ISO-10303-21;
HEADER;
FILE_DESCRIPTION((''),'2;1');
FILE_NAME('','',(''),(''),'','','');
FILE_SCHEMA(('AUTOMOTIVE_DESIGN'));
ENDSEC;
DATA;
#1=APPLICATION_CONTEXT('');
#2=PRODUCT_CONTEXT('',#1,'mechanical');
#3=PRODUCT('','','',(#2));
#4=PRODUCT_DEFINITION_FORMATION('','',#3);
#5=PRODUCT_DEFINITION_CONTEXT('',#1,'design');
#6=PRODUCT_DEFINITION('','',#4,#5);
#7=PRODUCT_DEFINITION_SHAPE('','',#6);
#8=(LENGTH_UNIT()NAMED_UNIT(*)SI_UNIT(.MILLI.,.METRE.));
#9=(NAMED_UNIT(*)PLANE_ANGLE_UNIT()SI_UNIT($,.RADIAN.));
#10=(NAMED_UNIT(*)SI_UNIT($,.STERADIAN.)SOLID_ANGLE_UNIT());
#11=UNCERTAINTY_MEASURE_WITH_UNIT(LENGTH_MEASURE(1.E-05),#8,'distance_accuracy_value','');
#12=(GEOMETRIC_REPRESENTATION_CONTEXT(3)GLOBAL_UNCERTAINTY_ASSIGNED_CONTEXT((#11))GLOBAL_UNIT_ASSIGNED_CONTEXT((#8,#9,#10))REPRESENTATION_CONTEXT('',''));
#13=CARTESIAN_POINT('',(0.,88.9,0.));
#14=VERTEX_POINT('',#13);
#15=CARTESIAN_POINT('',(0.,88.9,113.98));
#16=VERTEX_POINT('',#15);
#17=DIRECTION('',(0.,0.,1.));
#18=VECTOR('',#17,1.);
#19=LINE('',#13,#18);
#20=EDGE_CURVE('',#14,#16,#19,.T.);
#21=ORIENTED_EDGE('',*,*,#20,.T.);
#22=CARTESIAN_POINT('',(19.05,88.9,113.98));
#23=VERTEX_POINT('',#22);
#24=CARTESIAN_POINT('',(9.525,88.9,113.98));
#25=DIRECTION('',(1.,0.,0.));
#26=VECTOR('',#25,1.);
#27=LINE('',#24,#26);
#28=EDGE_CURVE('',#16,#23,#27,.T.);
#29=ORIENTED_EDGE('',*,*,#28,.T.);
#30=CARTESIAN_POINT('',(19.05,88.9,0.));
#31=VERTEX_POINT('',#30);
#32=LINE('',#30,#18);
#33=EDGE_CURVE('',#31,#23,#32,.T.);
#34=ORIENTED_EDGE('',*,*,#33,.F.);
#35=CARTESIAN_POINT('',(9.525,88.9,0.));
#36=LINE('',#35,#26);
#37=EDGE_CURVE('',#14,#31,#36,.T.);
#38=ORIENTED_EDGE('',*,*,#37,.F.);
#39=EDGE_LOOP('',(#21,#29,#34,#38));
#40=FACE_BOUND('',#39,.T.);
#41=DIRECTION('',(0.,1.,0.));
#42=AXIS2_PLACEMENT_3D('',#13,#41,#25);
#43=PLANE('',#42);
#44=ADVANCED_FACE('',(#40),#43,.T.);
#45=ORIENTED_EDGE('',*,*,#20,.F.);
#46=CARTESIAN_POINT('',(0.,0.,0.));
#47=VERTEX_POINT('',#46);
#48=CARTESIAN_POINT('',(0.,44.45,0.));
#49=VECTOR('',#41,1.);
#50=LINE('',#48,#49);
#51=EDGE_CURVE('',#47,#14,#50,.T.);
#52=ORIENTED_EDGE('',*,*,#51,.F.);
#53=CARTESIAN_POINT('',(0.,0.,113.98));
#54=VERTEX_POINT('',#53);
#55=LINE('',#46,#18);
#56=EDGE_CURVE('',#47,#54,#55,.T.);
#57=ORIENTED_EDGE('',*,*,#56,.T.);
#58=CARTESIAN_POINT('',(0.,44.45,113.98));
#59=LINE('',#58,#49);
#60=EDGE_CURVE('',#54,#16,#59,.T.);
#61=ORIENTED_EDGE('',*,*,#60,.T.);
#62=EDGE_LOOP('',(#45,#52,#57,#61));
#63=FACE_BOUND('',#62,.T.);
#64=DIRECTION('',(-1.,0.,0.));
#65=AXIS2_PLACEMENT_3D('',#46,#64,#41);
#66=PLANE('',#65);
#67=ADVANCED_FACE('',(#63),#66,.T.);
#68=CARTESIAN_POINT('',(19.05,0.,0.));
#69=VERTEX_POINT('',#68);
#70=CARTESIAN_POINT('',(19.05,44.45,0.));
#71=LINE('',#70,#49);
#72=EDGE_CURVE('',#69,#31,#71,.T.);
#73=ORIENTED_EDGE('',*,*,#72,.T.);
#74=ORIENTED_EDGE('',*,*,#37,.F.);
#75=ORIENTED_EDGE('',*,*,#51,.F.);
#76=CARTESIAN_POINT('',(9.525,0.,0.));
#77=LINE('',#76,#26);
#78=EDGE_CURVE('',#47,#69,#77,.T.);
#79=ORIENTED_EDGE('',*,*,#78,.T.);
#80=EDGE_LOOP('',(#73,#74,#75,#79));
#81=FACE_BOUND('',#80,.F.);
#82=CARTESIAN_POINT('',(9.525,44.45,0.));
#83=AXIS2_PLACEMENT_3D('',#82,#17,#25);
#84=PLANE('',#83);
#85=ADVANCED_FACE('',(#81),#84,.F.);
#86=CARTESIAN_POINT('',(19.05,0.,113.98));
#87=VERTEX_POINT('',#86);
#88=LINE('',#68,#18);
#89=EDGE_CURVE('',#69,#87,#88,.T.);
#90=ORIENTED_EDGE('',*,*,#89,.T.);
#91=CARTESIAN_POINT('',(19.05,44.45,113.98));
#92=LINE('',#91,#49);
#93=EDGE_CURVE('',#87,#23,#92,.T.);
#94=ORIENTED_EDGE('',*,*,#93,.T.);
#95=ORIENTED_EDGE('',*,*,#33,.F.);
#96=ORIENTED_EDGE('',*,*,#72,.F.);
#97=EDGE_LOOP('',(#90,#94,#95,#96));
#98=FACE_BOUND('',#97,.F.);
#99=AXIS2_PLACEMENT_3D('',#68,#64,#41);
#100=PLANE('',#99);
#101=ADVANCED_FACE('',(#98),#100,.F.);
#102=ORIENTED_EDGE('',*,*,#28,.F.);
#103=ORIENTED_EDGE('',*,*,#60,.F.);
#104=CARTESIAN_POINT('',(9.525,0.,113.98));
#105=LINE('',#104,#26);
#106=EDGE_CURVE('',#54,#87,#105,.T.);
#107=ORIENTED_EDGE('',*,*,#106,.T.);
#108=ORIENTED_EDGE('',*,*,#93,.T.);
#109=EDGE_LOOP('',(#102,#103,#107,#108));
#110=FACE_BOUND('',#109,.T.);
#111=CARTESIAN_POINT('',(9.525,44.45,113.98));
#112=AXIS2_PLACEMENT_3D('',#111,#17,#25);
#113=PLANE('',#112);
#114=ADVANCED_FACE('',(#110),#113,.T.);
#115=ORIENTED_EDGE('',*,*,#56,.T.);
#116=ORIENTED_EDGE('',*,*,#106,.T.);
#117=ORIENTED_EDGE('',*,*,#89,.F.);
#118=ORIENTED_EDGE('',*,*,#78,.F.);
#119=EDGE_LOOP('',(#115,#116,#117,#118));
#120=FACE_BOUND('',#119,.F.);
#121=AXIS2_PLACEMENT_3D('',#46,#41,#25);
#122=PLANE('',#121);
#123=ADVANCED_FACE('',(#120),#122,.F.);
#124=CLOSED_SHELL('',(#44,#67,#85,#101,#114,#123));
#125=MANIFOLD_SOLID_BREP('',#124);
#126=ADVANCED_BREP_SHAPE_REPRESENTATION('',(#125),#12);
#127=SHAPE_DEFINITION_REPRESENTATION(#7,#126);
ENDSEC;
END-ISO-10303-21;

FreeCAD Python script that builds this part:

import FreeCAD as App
import Part
import Sketcher
Q = App.Units.Quantity

doc = App.newDocument("Part")
body = doc.addObject("PartDesign::Body", "Body")

# Sketch on XY plane
sketch1 = doc.addObject("Sketcher::SketchObject", "Sketch")
body.addObject(sketch1)
sketch1.AttachmentSupport = (doc.XY_Plane, [""])
sketch1.MapMode = "FlatFace"
sketch1.addGeometry([
    Part.LineSegment(App.Vector(0, 88.9, 0), App.Vector(0, 0, 0)),
    Part.LineSegment(App.Vector(0, 0, 0), App.Vector(19.05, 0, 0)),
    Part.LineSegment(App.Vector(19.05, 0, 0), App.Vector(19.05, 88.9, 0)),
    Part.LineSegment(App.Vector(19.05, 88.9, 0), App.Vector(0, 88.9, 0)),
], False)
sketch1.addConstraint([
    Sketcher.Constraint("Coincident", 0, 2, 1, 1),
    Sketcher.Constraint("Coincident", 1, 2, 2, 1),
    Sketcher.Constraint("Coincident", 2, 2, 3, 1),
    Sketcher.Constraint("Coincident", 3, 2, 0, 1),
    Sketcher.Constraint("Vertical", 0),
    Sketcher.Constraint("Horizontal", 1),
    Sketcher.Constraint("Vertical", 2),
    Sketcher.Constraint("Horizontal", 3),
    Sketcher.Constraint("Coincident", 0, 2, -1, 1),
    Sketcher.Constraint("DistanceY", 0, 2, 0, 1, Q("3.5 in")),
    Sketcher.Constraint("DistanceX", 1, 1, 1, 2, Q("0.75 in")),
])
pad1 = doc.addObject("PartDesign::Pad", "Pad")
body.addObject(pad1)
pad1.Profile = sketch1
pad1.Length = 113.98

doc.recompute()
